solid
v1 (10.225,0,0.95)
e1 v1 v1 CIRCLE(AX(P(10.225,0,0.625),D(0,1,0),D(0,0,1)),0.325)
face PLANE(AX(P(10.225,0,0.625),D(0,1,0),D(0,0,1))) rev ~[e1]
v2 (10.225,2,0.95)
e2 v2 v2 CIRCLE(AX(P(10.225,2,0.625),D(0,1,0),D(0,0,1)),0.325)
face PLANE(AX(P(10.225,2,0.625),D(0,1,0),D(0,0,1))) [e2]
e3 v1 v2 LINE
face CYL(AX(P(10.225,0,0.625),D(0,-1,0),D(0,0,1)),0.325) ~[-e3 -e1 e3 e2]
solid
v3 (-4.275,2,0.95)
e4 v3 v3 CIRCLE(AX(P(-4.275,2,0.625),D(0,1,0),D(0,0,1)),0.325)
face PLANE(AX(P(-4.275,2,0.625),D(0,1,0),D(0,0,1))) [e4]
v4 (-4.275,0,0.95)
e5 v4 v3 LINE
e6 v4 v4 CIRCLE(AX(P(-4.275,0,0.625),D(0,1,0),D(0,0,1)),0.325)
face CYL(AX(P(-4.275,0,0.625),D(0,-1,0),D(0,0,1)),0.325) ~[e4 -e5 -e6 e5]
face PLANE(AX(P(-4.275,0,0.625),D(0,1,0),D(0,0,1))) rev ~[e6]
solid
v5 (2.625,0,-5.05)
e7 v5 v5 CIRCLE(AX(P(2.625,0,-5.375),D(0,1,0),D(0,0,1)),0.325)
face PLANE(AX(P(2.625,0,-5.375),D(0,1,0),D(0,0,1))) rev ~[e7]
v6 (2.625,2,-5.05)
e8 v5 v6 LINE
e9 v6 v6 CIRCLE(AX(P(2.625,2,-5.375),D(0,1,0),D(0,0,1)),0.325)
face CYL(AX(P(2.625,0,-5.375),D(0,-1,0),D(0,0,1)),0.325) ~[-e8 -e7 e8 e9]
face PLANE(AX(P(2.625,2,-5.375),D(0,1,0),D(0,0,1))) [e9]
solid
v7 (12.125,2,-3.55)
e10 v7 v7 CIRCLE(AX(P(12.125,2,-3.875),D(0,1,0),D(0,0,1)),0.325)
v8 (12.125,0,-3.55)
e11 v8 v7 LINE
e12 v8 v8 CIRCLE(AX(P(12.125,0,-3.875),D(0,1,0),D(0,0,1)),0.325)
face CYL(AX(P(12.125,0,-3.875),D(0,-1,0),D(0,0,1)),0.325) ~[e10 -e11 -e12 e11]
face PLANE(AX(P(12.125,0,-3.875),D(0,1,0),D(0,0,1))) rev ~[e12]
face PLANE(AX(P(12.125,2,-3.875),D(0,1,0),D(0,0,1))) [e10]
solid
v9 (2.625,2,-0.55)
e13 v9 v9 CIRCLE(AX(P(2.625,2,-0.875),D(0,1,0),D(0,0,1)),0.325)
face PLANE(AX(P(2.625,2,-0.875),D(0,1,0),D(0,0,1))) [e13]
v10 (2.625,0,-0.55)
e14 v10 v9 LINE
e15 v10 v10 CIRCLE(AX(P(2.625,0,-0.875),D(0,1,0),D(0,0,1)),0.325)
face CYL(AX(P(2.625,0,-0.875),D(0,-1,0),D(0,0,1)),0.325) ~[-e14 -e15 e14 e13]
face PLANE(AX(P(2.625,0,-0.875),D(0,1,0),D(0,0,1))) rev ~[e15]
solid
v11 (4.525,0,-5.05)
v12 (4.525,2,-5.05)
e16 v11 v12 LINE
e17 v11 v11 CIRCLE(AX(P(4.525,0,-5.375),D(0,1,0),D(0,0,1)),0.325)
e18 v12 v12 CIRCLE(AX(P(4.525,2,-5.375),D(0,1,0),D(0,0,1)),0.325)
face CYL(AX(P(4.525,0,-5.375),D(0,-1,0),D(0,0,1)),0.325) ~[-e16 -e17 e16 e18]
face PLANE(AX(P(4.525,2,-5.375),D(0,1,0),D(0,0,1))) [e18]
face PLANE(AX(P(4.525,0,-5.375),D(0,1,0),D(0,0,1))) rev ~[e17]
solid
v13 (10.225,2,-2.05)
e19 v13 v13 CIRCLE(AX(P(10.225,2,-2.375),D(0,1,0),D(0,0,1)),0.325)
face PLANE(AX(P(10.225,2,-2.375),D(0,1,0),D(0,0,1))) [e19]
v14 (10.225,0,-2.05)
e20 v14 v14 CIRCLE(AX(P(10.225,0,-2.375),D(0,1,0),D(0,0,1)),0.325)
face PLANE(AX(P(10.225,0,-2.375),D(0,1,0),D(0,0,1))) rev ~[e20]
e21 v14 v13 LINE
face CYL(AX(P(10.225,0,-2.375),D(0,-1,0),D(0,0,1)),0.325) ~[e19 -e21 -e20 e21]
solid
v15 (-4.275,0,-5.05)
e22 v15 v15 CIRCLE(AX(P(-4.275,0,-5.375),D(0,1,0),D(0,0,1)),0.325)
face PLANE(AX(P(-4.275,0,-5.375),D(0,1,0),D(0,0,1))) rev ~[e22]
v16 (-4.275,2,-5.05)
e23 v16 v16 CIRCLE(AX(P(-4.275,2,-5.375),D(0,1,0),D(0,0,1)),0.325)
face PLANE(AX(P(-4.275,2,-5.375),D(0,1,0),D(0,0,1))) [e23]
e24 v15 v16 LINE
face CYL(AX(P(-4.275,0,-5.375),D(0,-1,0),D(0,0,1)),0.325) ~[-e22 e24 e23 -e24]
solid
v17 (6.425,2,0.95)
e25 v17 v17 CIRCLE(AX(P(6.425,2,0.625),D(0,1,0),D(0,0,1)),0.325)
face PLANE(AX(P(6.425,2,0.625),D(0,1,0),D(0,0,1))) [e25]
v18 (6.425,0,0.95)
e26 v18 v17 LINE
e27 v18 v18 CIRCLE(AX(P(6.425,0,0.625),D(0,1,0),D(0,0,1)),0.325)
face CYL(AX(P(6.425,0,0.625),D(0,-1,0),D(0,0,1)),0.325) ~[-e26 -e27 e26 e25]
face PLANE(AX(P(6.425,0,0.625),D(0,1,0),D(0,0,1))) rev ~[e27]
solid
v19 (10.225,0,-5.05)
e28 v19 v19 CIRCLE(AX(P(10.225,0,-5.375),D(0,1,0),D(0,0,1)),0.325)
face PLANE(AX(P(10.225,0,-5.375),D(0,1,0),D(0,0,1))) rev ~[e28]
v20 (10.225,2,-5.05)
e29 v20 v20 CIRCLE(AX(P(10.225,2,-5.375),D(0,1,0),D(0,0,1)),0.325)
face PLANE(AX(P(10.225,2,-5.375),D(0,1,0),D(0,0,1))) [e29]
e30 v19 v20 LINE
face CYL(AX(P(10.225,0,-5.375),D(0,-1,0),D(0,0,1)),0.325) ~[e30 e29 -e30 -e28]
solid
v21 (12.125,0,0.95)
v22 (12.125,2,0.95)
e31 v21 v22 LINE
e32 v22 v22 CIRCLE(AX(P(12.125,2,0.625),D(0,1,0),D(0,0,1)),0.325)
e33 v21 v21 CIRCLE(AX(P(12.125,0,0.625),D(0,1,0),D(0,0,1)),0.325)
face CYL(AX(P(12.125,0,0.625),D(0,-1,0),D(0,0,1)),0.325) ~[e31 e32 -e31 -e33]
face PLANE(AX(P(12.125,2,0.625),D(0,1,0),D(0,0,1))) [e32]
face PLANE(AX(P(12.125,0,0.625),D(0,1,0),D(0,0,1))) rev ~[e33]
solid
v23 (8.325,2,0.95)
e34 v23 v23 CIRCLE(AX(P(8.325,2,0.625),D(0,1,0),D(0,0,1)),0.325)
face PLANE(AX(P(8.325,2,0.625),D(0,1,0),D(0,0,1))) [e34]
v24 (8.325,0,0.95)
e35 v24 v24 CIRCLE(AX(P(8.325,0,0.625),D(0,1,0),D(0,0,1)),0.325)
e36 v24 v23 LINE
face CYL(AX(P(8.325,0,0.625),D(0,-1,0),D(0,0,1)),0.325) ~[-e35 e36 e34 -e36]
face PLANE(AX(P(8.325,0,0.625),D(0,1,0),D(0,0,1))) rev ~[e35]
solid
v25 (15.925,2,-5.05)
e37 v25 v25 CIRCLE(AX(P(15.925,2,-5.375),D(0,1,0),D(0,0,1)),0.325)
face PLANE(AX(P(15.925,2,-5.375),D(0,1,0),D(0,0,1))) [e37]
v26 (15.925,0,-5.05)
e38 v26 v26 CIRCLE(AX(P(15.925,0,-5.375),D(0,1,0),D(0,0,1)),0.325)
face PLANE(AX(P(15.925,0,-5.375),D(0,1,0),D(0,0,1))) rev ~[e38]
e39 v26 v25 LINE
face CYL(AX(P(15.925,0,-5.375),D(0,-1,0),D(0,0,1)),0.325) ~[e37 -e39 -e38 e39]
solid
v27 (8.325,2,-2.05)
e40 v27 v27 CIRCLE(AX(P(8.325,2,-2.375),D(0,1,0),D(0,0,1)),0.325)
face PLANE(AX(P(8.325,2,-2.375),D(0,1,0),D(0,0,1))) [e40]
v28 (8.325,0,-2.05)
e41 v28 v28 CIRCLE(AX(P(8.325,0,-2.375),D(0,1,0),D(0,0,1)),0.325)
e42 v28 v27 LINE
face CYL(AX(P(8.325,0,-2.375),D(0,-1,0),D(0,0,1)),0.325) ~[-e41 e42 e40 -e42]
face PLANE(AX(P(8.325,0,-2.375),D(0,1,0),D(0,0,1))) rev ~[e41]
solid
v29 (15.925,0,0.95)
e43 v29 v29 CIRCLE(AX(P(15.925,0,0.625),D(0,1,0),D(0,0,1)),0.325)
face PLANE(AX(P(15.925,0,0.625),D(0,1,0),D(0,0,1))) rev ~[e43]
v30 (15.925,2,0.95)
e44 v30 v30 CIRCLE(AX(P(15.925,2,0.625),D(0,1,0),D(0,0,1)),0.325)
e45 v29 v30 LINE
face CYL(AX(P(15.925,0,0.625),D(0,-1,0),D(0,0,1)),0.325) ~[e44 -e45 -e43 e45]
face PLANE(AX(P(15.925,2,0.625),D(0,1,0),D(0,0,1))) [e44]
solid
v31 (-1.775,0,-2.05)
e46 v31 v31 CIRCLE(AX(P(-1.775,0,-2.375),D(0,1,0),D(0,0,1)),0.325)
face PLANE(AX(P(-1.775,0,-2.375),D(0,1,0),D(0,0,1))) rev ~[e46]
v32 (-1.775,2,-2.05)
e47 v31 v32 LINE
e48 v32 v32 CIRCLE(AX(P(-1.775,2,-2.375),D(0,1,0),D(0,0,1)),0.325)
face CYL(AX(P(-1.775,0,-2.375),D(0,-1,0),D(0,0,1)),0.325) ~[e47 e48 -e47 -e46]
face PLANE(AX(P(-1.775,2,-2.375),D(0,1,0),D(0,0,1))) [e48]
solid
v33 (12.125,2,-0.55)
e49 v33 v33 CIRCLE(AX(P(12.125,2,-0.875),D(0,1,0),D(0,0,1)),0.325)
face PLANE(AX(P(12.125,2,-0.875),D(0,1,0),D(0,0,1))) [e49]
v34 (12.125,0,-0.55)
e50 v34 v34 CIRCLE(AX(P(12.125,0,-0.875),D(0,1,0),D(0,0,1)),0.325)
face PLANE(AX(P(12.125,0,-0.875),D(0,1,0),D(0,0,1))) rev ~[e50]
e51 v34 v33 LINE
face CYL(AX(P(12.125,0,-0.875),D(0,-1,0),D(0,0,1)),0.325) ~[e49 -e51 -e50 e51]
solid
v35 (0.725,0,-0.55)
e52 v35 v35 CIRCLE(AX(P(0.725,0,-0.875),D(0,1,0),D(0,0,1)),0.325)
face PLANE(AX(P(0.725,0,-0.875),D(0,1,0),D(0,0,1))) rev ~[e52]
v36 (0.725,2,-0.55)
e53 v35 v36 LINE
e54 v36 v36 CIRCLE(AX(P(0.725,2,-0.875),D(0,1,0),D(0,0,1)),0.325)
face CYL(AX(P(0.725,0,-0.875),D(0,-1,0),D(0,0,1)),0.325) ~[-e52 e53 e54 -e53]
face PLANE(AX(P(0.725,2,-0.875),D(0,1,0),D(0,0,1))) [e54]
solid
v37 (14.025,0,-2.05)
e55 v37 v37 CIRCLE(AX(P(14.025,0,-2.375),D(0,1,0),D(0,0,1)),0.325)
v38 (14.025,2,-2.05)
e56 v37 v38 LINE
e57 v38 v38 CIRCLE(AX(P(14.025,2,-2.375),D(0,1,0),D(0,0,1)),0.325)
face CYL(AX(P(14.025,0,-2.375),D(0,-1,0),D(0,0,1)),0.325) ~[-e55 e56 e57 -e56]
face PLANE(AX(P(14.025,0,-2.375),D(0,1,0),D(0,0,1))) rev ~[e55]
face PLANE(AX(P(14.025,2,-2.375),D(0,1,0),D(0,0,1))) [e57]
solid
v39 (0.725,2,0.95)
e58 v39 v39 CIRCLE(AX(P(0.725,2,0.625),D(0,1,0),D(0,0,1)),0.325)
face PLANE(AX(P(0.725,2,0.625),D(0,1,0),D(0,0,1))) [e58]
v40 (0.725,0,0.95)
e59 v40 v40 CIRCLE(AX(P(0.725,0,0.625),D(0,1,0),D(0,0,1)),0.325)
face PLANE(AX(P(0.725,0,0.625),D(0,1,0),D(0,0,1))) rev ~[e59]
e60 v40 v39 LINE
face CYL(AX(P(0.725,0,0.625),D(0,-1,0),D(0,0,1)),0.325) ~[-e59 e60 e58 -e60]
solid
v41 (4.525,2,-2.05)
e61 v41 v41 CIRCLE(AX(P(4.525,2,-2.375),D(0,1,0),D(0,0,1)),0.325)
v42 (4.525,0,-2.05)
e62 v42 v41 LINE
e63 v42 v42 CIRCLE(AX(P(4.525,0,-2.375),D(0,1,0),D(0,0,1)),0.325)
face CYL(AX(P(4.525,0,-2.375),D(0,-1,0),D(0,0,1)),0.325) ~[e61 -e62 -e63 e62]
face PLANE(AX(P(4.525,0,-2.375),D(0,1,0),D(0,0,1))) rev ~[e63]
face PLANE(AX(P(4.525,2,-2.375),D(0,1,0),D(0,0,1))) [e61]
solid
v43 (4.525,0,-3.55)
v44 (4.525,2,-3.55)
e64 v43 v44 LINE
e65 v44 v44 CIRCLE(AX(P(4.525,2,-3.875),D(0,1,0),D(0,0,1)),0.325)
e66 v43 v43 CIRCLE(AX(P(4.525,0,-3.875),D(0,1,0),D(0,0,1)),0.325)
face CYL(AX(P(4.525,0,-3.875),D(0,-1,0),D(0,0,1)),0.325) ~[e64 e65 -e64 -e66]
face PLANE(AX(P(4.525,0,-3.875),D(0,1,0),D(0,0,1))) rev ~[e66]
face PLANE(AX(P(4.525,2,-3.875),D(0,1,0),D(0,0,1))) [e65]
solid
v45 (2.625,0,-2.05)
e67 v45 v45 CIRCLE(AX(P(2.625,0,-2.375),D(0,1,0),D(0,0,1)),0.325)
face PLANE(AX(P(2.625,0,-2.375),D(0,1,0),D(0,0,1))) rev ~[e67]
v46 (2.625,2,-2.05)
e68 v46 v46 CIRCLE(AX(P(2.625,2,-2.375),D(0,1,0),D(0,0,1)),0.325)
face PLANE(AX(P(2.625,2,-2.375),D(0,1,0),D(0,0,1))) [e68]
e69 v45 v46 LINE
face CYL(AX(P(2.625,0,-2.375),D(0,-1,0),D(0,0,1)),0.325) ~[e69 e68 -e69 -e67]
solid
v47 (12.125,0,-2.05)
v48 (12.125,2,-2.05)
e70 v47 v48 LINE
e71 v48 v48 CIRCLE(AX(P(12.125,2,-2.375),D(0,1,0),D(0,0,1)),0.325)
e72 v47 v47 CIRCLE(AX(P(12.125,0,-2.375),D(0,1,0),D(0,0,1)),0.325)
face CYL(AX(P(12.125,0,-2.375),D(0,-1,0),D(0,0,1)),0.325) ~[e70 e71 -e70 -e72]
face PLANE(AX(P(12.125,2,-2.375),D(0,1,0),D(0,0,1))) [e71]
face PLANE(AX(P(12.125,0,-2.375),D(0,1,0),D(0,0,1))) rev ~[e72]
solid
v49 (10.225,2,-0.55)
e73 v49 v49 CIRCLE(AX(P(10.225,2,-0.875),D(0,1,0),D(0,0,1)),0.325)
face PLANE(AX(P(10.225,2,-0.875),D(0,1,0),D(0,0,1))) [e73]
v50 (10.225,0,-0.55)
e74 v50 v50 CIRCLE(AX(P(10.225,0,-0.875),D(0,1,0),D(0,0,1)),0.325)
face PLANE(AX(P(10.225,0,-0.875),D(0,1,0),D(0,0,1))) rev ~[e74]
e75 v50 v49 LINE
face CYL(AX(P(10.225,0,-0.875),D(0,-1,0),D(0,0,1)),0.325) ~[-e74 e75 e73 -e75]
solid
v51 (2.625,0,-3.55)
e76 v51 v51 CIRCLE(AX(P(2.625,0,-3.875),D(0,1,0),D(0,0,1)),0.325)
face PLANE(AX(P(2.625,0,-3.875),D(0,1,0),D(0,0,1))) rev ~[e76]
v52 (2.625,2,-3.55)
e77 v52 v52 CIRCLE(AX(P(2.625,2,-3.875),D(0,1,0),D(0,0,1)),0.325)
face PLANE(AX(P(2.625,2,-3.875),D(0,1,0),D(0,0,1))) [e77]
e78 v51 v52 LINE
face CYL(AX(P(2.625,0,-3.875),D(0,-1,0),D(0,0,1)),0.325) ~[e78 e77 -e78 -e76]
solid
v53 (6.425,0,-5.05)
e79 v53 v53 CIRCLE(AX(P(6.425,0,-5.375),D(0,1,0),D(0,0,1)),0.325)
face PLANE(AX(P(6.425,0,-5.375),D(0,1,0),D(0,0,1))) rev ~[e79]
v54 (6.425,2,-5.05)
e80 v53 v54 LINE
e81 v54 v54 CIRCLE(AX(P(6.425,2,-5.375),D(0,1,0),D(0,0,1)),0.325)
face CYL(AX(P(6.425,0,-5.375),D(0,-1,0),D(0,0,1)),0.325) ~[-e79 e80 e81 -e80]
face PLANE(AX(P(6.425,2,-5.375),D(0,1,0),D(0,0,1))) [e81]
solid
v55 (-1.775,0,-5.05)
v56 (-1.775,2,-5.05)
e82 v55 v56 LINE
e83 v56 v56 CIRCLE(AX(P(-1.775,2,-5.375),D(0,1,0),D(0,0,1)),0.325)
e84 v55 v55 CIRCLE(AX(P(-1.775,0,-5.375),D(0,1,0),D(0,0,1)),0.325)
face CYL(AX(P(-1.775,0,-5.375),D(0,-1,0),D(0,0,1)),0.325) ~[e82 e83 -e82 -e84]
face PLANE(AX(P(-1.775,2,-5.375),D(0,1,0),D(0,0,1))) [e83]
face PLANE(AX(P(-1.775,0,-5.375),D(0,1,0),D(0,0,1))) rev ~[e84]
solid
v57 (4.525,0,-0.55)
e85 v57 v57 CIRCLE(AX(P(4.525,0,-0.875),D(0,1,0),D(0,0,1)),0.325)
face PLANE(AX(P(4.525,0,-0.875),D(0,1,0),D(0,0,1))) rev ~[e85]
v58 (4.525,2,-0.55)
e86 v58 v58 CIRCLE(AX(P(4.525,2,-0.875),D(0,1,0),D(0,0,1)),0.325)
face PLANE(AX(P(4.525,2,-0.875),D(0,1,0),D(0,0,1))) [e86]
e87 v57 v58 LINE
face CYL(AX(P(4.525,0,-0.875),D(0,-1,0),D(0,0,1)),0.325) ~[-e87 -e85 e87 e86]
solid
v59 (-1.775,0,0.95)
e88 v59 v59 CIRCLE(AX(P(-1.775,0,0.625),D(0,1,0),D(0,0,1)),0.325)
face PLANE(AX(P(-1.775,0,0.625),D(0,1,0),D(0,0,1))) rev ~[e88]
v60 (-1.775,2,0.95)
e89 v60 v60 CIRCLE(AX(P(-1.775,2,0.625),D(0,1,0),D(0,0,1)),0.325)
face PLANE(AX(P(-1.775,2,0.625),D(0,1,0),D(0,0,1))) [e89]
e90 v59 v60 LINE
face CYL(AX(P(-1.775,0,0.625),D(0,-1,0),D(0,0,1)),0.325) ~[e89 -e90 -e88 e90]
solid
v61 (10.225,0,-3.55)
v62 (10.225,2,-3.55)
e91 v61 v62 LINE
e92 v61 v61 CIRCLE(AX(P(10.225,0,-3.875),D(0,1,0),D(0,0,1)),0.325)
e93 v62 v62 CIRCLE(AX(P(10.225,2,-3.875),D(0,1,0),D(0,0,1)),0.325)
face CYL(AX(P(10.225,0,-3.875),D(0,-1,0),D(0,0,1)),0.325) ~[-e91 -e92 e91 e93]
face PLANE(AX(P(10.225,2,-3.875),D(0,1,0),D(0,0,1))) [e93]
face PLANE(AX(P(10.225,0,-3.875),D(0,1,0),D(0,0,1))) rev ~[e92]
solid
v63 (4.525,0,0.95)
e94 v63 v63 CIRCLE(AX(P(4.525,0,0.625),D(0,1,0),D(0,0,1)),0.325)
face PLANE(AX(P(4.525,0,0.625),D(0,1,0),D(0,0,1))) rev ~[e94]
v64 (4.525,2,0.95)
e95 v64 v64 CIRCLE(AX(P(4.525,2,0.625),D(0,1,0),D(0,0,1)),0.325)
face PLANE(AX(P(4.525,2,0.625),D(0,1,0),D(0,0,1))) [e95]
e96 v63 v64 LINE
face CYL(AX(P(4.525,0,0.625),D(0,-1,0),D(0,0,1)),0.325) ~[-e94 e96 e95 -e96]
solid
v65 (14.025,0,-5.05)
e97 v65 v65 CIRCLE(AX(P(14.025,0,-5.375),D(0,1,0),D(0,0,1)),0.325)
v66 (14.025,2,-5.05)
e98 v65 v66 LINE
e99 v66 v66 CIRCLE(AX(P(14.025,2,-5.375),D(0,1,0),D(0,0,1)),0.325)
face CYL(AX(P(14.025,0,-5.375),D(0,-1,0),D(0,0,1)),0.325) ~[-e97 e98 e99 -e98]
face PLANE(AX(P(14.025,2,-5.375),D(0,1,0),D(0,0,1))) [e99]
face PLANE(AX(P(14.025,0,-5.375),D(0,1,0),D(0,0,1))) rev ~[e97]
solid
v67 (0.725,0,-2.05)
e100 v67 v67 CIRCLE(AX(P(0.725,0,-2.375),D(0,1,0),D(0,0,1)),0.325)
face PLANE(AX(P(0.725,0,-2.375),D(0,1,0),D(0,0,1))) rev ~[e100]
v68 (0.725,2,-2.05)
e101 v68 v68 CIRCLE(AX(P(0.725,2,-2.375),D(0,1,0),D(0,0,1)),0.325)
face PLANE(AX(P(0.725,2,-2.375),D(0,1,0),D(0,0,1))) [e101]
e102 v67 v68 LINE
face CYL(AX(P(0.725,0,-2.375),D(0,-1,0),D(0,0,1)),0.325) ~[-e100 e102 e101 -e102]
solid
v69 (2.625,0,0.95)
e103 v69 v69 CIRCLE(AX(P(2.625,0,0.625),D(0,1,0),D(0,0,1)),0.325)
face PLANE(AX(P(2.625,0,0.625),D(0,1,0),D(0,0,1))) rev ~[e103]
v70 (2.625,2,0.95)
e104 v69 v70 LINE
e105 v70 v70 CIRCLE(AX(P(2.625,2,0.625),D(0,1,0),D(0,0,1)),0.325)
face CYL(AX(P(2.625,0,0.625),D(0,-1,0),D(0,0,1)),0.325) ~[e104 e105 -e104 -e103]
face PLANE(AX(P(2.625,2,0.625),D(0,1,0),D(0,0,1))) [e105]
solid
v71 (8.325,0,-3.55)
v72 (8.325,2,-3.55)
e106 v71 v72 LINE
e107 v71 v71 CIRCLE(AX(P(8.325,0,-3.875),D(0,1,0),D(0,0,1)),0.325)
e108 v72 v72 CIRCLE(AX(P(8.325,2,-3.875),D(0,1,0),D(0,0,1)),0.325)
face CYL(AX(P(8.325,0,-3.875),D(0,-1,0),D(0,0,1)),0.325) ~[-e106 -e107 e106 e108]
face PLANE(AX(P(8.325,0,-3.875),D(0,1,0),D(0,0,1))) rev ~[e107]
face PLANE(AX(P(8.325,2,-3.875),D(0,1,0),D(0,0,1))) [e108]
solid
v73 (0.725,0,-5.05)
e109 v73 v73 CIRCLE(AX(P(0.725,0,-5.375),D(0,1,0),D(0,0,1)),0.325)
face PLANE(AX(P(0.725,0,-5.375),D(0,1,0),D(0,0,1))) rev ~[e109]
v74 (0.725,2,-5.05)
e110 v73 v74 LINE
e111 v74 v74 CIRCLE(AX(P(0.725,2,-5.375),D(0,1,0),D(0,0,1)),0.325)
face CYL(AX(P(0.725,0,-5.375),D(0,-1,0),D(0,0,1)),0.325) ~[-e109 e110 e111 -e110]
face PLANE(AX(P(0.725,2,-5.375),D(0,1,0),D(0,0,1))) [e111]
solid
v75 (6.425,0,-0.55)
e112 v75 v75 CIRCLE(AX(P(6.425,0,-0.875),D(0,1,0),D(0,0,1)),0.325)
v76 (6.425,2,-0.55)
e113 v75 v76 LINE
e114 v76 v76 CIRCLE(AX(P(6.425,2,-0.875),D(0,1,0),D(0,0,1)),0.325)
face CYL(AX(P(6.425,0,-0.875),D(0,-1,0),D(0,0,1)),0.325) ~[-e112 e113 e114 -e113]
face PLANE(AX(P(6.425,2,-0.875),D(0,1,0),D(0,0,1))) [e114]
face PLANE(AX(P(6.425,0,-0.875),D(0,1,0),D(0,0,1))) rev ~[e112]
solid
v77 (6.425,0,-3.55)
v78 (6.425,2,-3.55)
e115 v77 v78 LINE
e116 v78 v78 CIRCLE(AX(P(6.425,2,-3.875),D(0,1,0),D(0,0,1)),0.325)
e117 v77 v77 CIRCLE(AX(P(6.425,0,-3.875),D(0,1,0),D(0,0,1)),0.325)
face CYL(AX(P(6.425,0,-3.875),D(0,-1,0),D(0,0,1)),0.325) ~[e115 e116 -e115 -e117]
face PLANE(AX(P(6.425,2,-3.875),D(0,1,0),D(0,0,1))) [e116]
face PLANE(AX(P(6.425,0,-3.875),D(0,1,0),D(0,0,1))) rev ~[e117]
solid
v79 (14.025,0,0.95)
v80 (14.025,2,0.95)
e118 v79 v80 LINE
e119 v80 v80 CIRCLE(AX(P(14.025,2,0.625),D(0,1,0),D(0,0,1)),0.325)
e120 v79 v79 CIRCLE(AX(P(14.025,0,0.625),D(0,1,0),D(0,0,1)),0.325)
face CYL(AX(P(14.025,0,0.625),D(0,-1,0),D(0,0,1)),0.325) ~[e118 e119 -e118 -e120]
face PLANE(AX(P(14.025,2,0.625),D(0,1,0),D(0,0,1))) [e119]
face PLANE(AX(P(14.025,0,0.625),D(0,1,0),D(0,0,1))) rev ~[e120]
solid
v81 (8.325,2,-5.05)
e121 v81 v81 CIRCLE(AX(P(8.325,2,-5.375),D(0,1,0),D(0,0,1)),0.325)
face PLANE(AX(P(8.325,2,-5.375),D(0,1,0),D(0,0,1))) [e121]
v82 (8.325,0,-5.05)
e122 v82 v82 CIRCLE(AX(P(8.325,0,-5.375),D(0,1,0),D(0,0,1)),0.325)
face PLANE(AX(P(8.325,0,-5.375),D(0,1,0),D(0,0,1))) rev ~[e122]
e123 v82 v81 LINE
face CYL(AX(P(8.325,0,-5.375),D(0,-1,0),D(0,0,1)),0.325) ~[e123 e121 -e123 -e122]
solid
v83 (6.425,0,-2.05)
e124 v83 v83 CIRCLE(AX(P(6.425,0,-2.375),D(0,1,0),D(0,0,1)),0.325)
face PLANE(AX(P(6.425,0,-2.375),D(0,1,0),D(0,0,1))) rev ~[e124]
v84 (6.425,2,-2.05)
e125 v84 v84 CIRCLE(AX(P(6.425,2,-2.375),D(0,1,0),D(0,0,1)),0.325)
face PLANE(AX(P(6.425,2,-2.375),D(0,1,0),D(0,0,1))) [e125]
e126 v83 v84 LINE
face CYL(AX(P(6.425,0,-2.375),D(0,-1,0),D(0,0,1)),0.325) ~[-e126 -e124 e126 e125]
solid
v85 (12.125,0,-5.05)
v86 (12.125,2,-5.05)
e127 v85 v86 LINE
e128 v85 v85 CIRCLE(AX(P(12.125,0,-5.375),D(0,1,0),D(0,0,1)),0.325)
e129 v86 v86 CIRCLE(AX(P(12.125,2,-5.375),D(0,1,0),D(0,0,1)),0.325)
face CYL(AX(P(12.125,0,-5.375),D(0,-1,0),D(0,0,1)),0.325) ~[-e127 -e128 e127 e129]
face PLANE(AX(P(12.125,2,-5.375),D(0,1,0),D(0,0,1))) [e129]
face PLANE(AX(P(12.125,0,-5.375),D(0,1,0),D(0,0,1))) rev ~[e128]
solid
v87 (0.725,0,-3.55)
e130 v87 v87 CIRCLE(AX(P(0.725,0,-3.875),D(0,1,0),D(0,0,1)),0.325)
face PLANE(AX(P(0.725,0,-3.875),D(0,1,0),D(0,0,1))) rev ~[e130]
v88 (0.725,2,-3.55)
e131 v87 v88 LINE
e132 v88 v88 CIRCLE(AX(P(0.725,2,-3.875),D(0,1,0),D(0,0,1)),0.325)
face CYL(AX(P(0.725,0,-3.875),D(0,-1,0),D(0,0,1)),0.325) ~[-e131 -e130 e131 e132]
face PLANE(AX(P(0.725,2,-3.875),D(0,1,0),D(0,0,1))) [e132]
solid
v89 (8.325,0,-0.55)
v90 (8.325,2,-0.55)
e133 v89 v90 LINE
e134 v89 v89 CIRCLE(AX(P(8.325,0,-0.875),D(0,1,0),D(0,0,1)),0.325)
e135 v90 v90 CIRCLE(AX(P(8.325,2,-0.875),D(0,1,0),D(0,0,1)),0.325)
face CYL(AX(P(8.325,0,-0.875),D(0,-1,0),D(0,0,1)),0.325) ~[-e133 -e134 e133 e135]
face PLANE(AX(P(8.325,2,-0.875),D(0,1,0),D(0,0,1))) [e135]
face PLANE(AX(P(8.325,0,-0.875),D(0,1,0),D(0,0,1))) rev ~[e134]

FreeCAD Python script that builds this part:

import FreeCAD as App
import Part
import Sketcher
from FreeCAD import Vector
Q = App.Units.Quantity

doc = App.newDocument("Part")
body = doc.addObject("PartDesign::Body", "Body")

sketch1 = body.newObject("Sketcher::SketchObject", "Sketch")
sketch1.AttachmentSupport = (doc.getObject("XZ_Plane"), [""])
sketch1.MapMode = "FlatFace"
sketch1.addGeometry(Part.Circle(Vector(0.72, 0.62, 0), Vector(0, 0, 1), 0.33), False)
sketch1.addConstraint([
    Sketcher.Constraint("Diameter", 0, Q("0.65 mm")),
    Sketcher.Constraint("DistanceX", -1, 1, 0, 3, Q("0.725 mm")),
    Sketcher.Constraint("DistanceY", -1, 1, 0, 3, Q("0.625 mm")),
])
pad1 = body.newObject("PartDesign::Pad", "Pad")
pad1.Profile = sketch1
pad1.Length = 2
pad1.Reversed = True
body2 = doc.addObject("PartDesign::Body", "Body001")

sketch2 = body2.newObject("Sketcher::SketchObject", "Sketch001")
sketch2.AttachmentSupport = (doc.getObject("XZ_Plane001"), [""])
sketch2.MapMode = "FlatFace"
sketch2.addGeometry(Part.Circle(Vector(2.62, 0.62, 0), Vector(0, 0, 1), 0.33), False)
sketch2.addConstraint([
    Sketcher.Constraint("Diameter", 0, Q("0.65 mm")),
    Sketcher.Constraint("DistanceX", -1, 1, 0, 3, Q("2.625 mm")),
    Sketcher.Constraint("DistanceY", -1, 1, 0, 3, Q("0.625 mm")),
])
pad2 = body2.newObject("PartDesign::Pad", "Pad001")
pad2.Profile = sketch2
pad2.Length = 2
pad2.Reversed = True
body3 = doc.addObject("PartDesign::Body", "Body002")

sketch3 = body3.newObject("Sketcher::SketchObject", "Sketch002")
sketch3.AttachmentSupport = (doc.getObject("XZ_Plane002"), [""])
sketch3.MapMode = "FlatFace"
sketch3.addGeometry(Part.Circle(Vector(4.53, 0.62, 0), Vector(0, 0, 1), 0.33), False)
sketch3.addConstraint([
    Sketcher.Constraint("Diameter", 0, Q("0.65 mm")),
    Sketcher.Constraint("DistanceX", -1, 1, 0, 3, Q("4.525 mm")),
    Sketcher.Constraint("DistanceY", -1, 1, 0, 3, Q("0.625 mm")),
])
pad3 = body3.newObject("PartDesign::Pad", "Pad002")
pad3.Profile = sketch3
pad3.Length = 2
pad3.Reversed = True
body4 = doc.addObject("PartDesign::Body", "Body003")

sketch4 = body4.newObject("Sketcher::SketchObject", "Sketch003")
sketch4.AttachmentSupport = (doc.getObject("XZ_Plane003"), [""])
sketch4.MapMode = "FlatFace"
sketch4.addGeometry(Part.Circle(Vector(6.42, 0.62, 0), Vector(0, 0, 1), 0.33), False)
sketch4.addConstraint([
    Sketcher.Constraint("Diameter", 0, Q("0.65 mm")),
    Sketcher.Constraint("DistanceX", -1, 1, 0, 3, Q("6.425 mm")),
    Sketcher.Constraint("DistanceY", -1, 1, 0, 3, Q("0.625 mm")),
])
pad4 = body4.newObject("PartDesign::Pad", "Pad003")
pad4.Profile = sketch4
pad4.Length = 2
pad4.Reversed = True
body5 = doc.addObject("PartDesign::Body", "Body004")

sketch5 = body5.newObject("Sketcher::SketchObject", "Sketch004")
sketch5.AttachmentSupport = (doc.getObject("XZ_Plane004"), [""])
sketch5.MapMode = "FlatFace"
sketch5.addGeometry(Part.Circle(Vector(8.32, 0.62, 0), Vector(0, 0, 1), 0.33), False)
sketch5.addConstraint([
    Sketcher.Constraint("Diameter", 0, Q("0.65 mm")),
    Sketcher.Constraint("DistanceX", -1, 1, 0, 3, Q("8.325 mm")),
    Sketcher.Constraint("DistanceY", -1, 1, 0, 3, Q("0.625 mm")),
])
pad5 = body5.newObject("PartDesign::Pad", "Pad004")
pad5.Profile = sketch5
pad5.Length = 2
pad5.Reversed = True
body6 = doc.addObject("PartDesign::Body", "Body005")

sketch6 = body6.newObject("Sketcher::SketchObject", "Sketch005")
sketch6.AttachmentSupport = (doc.getObject("XZ_Plane005"), [""])
sketch6.MapMode = "FlatFace"
sketch6.addGeometry(Part.Circle(Vector(10.22, 0.62, 0), Vector(0, 0, 1), 0.33), False)
sketch6.addConstraint([
    Sketcher.Constraint("Diameter", 0, Q("0.65 mm")),
    Sketcher.Constraint("DistanceX", -1, 1, 0, 3, Q("10.225 mm")),
    Sketcher.Constraint("DistanceY", -1, 1, 0, 3, Q("0.625 mm")),
])
pad6 = body6.newObject("PartDesign::Pad", "Pad005")
pad6.Profile = sketch6
pad6.Length = 2
pad6.Reversed = True
body7 = doc.addObject("PartDesign::Body", "Body006")

sketch7 = body7.newObject("Sketcher::SketchObject", "Sketch006")
sketch7.AttachmentSupport = (doc.getObject("XZ_Plane006"), [""])
sketch7.MapMode = "FlatFace"
sketch7.addGeometry(Part.Circle(Vector(12.12, 0.62, 0), Vector(0, 0, 1), 0.33), False)
sketch7.addConstraint([
    Sketcher.Constraint("Diameter", 0, Q("0.65 mm")),
    Sketcher.Constraint("DistanceX", -1, 1, 0, 3, Q("12.125 mm")),
    Sketcher.Constraint("DistanceY", -1, 1, 0, 3, Q("0.625 mm")),
])
pad7 = body7.newObject("PartDesign::Pad", "Pad006")
pad7.Profile = sketch7
pad7.Length = 2
pad7.Reversed = True
body8 = doc.addObject("PartDesign::Body", "Body007")

sketch8 = body8.newObject("Sketcher::SketchObject", "Sketch007")
sketch8.AttachmentSupport = (doc.getObject("XZ_Plane007"), [""])
sketch8.MapMode = "FlatFace"
sketch8.addGeometry(Part.Circle(Vector(14.03, 0.62, 0), Vector(0, 0, 1), 0.33), False)
sketch8.addConstraint([
    Sketcher.Constraint("Diameter", 0, Q("0.65 mm")),
    Sketcher.Constraint("DistanceX", -1, 1, 0, 3, Q("14.025 mm")),
    Sketcher.Constraint("DistanceY", -1, 1, 0, 3, Q("0.625 mm")),
])
pad8 = body8.newObject("PartDesign::Pad", "Pad007")
pad8.Profile = sketch8
pad8.Length = 2
pad8.Reversed = True
body9 = doc.addObject("PartDesign::Body", "Body008")

sketch9 = body9.newObject("Sketcher::SketchObject", "Sketch008")
sketch9.AttachmentSupport = (doc.getObject("XZ_Plane008"), [""])
sketch9.MapMode = "FlatFace"
sketch9.addGeometry(Part.Circle(Vector(15.93, 0.62, 0), Vector(0, 0, 1), 0.33), False)
sketch9.addConstraint([
    Sketcher.Constraint("Diameter", 0, Q("0.65 mm")),
    Sketcher.Constraint("DistanceX", -1, 1, 0, 3, Q("15.925 mm")),
    Sketcher.Constraint("DistanceY", -1, 1, 0, 3, Q("0.625 mm")),
])
pad9 = body9.newObject("PartDesign::Pad", "Pad008")
pad9.Profile = sketch9
pad9.Length = 2
pad9.Reversed = True
body10 = doc.addObject("PartDesign::Body", "Body009")

sketch10 = body10.newObject("Sketcher::SketchObject", "Sketch009")
sketch10.AttachmentSupport = (doc.getObject("XZ_Plane009"), [""])
sketch10.MapMode = "FlatFace"
sketch10.addGeometry(Part.Circle(Vector(2.62, -0.88, 0), Vector(0, 0, 1), 0.33), False)
sketch10.addConstraint([
    Sketcher.Constraint("Diameter", 0, Q("0.65 mm")),
    Sketcher.Constraint("DistanceX", -1, 1, 0, 3, Q("2.625 mm")),
    Sketcher.Constraint("DistanceY", 0, 3, -1, 1, Q("0.875 mm")),
])
pad10 = body10.newObject("PartDesign::Pad", "Pad009")
pad10.Profile = sketch10
pad10.Length = 2
pad10.Reversed = True
body11 = doc.addObject("PartDesign::Body", "Body010")

sketch11 = body11.newObject("Sketcher::SketchObject", "Sketch010")
sketch11.AttachmentSupport = (doc.getObject("XZ_Plane010"), [""])
sketch11.MapMode = "FlatFace"
sketch11.addGeometry(Part.Circle(Vector(4.53, -0.88, 0), Vector(0, 0, 1), 0.33), False)
sketch11.addConstraint([
    Sketcher.Constraint("Diameter", 0, Q("0.65 mm")),
    Sketcher.Constraint("DistanceX", -1, 1, 0, 3, Q("4.525 mm")),
    Sketcher.Constraint("DistanceY", 0, 3, -1, 1, Q("0.875 mm")),
])
pad11 = body11.newObject("PartDesign::Pad", "Pad010")
pad11.Profile = sketch11
pad11.Length = 2
pad11.Reversed = True
body12 = doc.addObject("PartDesign::Body", "Body011")

sketch12 = body12.newObject("Sketcher::SketchObject", "Sketch011")
sketch12.AttachmentSupport = (doc.getObject("XZ_Plane011"), [""])
sketch12.MapMode = "FlatFace"
sketch12.addGeometry(Part.Circle(Vector(6.42, -0.88, 0), Vector(0, 0, 1), 0.33), False)
sketch12.addConstraint([
    Sketcher.Constraint("Diameter", 0, Q("0.65 mm")),
    Sketcher.Constraint("DistanceX", -1, 1, 0, 3, Q("6.425 mm")),
    Sketcher.Constraint("DistanceY", 0, 3, -1, 1, Q("0.875 mm")),
])
pad12 = body12.newObject("PartDesign::Pad", "Pad011")
pad12.Profile = sketch12
pad12.Length = 2
pad12.Reversed = True
body13 = doc.addObject("PartDesign::Body", "Body012")

sketch13 = body13.newObject("Sketcher::SketchObject", "Sketch012")
sketch13.AttachmentSupport = (doc.getObject("XZ_Plane012"), [""])
sketch13.MapMode = "FlatFace"
sketch13.addGeometry(Part.Circle(Vector(8.32, -0.88, 0), Vector(0, 0, 1), 0.33), False)
sketch13.addConstraint([
    Sketcher.Constraint("Diameter", 0, Q("0.65 mm")),
    Sketcher.Constraint("DistanceX", -1, 1, 0, 3, Q("8.325 mm")),
    Sketcher.Constraint("DistanceY", 0, 3, -1, 1, Q("0.875 mm")),
])
pad13 = body13.newObject("PartDesign::Pad", "Pad012")
pad13.Profile = sketch13
pad13.Length = 2
pad13.Reversed = True
body14 = doc.addObject("PartDesign::Body", "Body013")

sketch14 = body14.newObject("Sketcher::SketchObject", "Sketch013")
sketch14.AttachmentSupport = (doc.getObject("XZ_Plane013"), [""])
sketch14.MapMode = "FlatFace"
sketch14.addGeometry(Part.Circle(Vector(10.22, -0.88, 0), Vector(0, 0, 1), 0.33), False)
sketch14.addConstraint([
    Sketcher.Constraint("Diameter", 0, Q("0.65 mm")),
    Sketcher.Constraint("DistanceX", -1, 1, 0, 3, Q("10.225 mm")),
    Sketcher.Constraint("DistanceY", 0, 3, -1, 1, Q("0.875 mm")),
])
pad14 = body14.newObject("PartDesign::Pad", "Pad013")
pad14.Profile = sketch14
pad14.Length = 2
pad14.Reversed = True
body15 = doc.addObject("PartDesign::Body", "Body014")

sketch15 = body15.newObject("Sketcher::SketchObject", "Sketch014")
sketch15.AttachmentSupport = (doc.getObject("XZ_Plane014"), [""])
sketch15.MapMode = "FlatFace"
sketch15.addGeometry(Part.Circle(Vector(12.12, -0.88, 0), Vector(0, 0, 1), 0.33), False)
sketch15.addConstraint([
    Sketcher.Constraint("Diameter", 0, Q("0.65 mm")),
    Sketcher.Constraint("DistanceX", -1, 1, 0, 3, Q("12.125 mm")),
    Sketcher.Constraint("DistanceY", 0, 3, -1, 1, Q("0.875 mm")),
])
pad15 = body15.newObject("PartDesign::Pad", "Pad014")
pad15.Profile = sketch15
pad15.Length = 2
pad15.Reversed = True
body16 = doc.addObject("PartDesign::Body", "Body015")

sketch16 = body16.newObject("Sketcher::SketchObject", "Sketch015")
sketch16.AttachmentSupport = (doc.getObject("XZ_Plane015"), [""])
sketch16.MapMode = "FlatFace"
sketch16.addGeometry(Part.Circle(Vector(2.62, -2.38, 0), Vector(0, 0, 1), 0.33), False)
sketch16.addConstraint([
    Sketcher.Constraint("Diameter", 0, Q("0.65 mm")),
    Sketcher.Constraint("DistanceX", -1, 1, 0, 3, Q("2.625 mm")),
    Sketcher.Constraint("DistanceY", 0, 3, -1, 1, Q("2.375 mm")),
])
pad16 = body16.newObject("PartDesign::Pad", "Pad015")
pad16.Profile = sketch16
pad16.Length = 2
pad16.Reversed = True
body17 = doc.addObject("PartDesign::Body", "Body016")

sketch17 = body17.newObject("Sketcher::SketchObject", "Sketch016")
sketch17.AttachmentSupport = (doc.getObject("XZ_Plane016"), [""])
sketch17.MapMode = "FlatFace"
sketch17.addGeometry(Part.Circle(Vector(4.53, -2.38, 0), Vector(0, 0, 1), 0.33), False)
sketch17.addConstraint([
    Sketcher.Constraint("Diameter", 0, Q("0.65 mm")),
    Sketcher.Constraint("DistanceX", -1, 1, 0, 3, Q("4.525 mm")),
    Sketcher.Constraint("DistanceY", 0, 3, -1, 1, Q("2.375 mm")),
])
pad17 = body17.newObject("PartDesign::Pad", "Pad016")
pad17.Profile = sketch17
pad17.Length = 2
pad17.Reversed = True
body18 = doc.addObject("PartDesign::Body", "Body017")

sketch18 = body18.newObject("Sketcher::SketchObject", "Sketch017")
sketch18.AttachmentSupport = (doc.getObject("XZ_Plane017"), [""])
sketch18.MapMode = "FlatFace"
sketch18.addGeometry(Part.Circle(Vector(6.42, -2.38, 0), Vector(0, 0, 1), 0.33), False)
sketch18.addConstraint([
    Sketcher.Constraint("Diameter", 0, Q("0.65 mm")),
    Sketcher.Constraint("DistanceX", -1, 1, 0, 3, Q("6.425 mm")),
    Sketcher.Constraint("DistanceY", 0, 3, -1, 1, Q("2.375 mm")),
])
pad18 = body18.newObject("PartDesign::Pad", "Pad017")
pad18.Profile = sketch18
pad18.Length = 2
pad18.Reversed = True
body19 = doc.addObject("PartDesign::Body", "Body018")

sketch19 = body19.newObject("Sketcher::SketchObject", "Sketch018")
sketch19.AttachmentSupport = (doc.getObject("XZ_Plane018"), [""])
sketch19.MapMode = "FlatFace"
sketch19.addGeometry(Part.Circle(Vector(8.32, -2.38, 0), Vector(0, 0, 1), 0.33), False)
sketch19.addConstraint([
    Sketcher.Constraint("Diameter", 0, Q("0.65 mm")),
    Sketcher.Constraint("DistanceX", -1, 1, 0, 3, Q("8.325 mm")),
    Sketcher.Constraint("DistanceY", 0, 3, -1, 1, Q("2.375 mm")),
])
pad19 = body19.newObject("PartDesign::Pad", "Pad018")
pad19.Profile = sketch19
pad19.Length = 2
pad19.Reversed = True
body20 = doc.addObject("PartDesign::Body", "Body019")

sketch20 = body20.newObject("Sketcher::SketchObject", "Sketch019")
sketch20.AttachmentSupport = (doc.getObject("XZ_Plane019"), [""])
sketch20.MapMode = "FlatFace"
sketch20.addGeometry(Part.Circle(Vector(10.22, -2.38, 0), Vector(0, 0, 1), 0.33), False)
sketch20.addConstraint([
    Sketcher.Constraint("Diameter", 0, Q("0.65 mm")),
    Sketcher.Constraint("DistanceX", -1, 1, 0, 3, Q("10.225 mm")),
    Sketcher.Constraint("DistanceY", 0, 3, -1, 1, Q("2.375 mm")),
])
pad20 = body20.newObject("PartDesign::Pad", "Pad019")
pad20.Profile = sketch20
pad20.Length = 2
pad20.Reversed = True
body21 = doc.addObject("PartDesign::Body", "Body020")

sketch21 = body21.newObject("Sketcher::SketchObject", "Sketch020")
sketch21.AttachmentSupport = (doc.getObject("XZ_Plane020"), [""])
sketch21.MapMode = "FlatFace"
sketch21.addGeometry(Part.Circle(Vector(12.12, -2.38, 0), Vector(0, 0, 1), 0.33), False)
sketch21.addConstraint([
    Sketcher.Constraint("Diameter", 0, Q("0.65 mm")),
    Sketcher.Constraint("DistanceX", -1, 1, 0, 3, Q("12.125 mm")),
    Sketcher.Constraint("DistanceY", 0, 3, -1, 1, Q("2.375 mm")),
])
pad21 = body21.newObject("PartDesign::Pad", "Pad020")
pad21.Profile = sketch21
pad21.Length = 2
pad21.Reversed = True
body22 = doc.addObject("PartDesign::Body", "Body021")

sketch22 = body22.newObject("Sketcher::SketchObject", "Sketch021")
sketch22.AttachmentSupport = (doc.getObject("XZ_Plane021"), [""])
sketch22.MapMode = "FlatFace"
sketch22.addGeometry(Part.Circle(Vector(14.03, -2.38, 0), Vector(0, 0, 1), 0.33), False)
sketch22.addConstraint([
    Sketcher.Constraint("Diameter", 0, Q("0.65 mm")),
    Sketcher.Constraint("DistanceX", -1, 1, 0, 3, Q("14.025 mm")),
    Sketcher.Constraint("DistanceY", 0, 3, -1, 1, Q("2.375 mm")),
])
pad22 = body22.newObject("PartDesign::Pad", "Pad021")
pad22.Profile = sketch22
pad22.Length = 2
pad22.Reversed = True
body23 = doc.addObject("PartDesign::Body", "Body022")

sketch23 = body23.newObject("Sketcher::SketchObject", "Sketch022")
sketch23.AttachmentSupport = (doc.getObject("XZ_Plane022"), [""])
sketch23.MapMode = "FlatFace"
sketch23.addGeometry(Part.Circle(Vector(2.62, -3.88, 0), Vector(0, 0, 1), 0.33), False)
sketch23.addConstraint([
    Sketcher.Constraint("Diameter", 0, Q("0.65 mm")),
    Sketcher.Constraint("DistanceX", -1, 1, 0, 3, Q("2.625 mm")),
    Sketcher.Constraint("DistanceY", 0, 3, -1, 1, Q("3.875 mm")),
])
pad23 = body23.newObject("PartDesign::Pad", "Pad022")
pad23.Profile = sketch23
pad23.Length = 2
pad23.Reversed = True
body24 = doc.addObject("PartDesign::Body", "Body023")

sketch24 = body24.newObject("Sketcher::SketchObject", "Sketch023")
sketch24.AttachmentSupport = (doc.getObject("XZ_Plane023"), [""])
sketch24.MapMode = "FlatFace"
sketch24.addGeometry(Part.Circle(Vector(4.53, -3.88, 0), Vector(0, 0, 1), 0.33), False)
sketch24.addConstraint([
    Sketcher.Constraint("Diameter", 0, Q("0.65 mm")),
    Sketcher.Constraint("DistanceX", -1, 1, 0, 3, Q("4.525 mm")),
    Sketcher.Constraint("DistanceY", 0, 3, -1, 1, Q("3.875 mm")),
])
pad24 = body24.newObject("PartDesign::Pad", "Pad023")
pad24.Profile = sketch24
pad24.Length = 2
pad24.Reversed = True
body25 = doc.addObject("PartDesign::Body", "Body024")

sketch25 = body25.newObject("Sketcher::SketchObject", "Sketch024")
sketch25.AttachmentSupport = (doc.getObject("XZ_Plane024"), [""])
sketch25.MapMode = "FlatFace"
sketch25.addGeometry(Part.Circle(Vector(6.42, -3.88, 0), Vector(0, 0, 1), 0.33), False)
sketch25.addConstraint([
    Sketcher.Constraint("Diameter", 0, Q("0.65 mm")),
    Sketcher.Constraint("DistanceX", -1, 1, 0, 3, Q("6.425 mm")),
    Sketcher.Constraint("DistanceY", 0, 3, -1, 1, Q("3.875 mm")),
])
pad25 = body25.newObject("PartDesign::Pad", "Pad024")
pad25.Profile = sketch25
pad25.Length = 2
pad25.Reversed = True
body26 = doc.addObject("PartDesign::Body", "Body025")

sketch26 = body26.newObject("Sketcher::SketchObject", "Sketch025")
sketch26.AttachmentSupport = (doc.getObject("XZ_Plane025"), [""])
sketch26.MapMode = "FlatFace"
sketch26.addGeometry(Part.Circle(Vector(8.32, -3.88, 0), Vector(0, 0, 1), 0.33), False)
sketch26.addConstraint([
    Sketcher.Constraint("Diameter", 0, Q("0.65 mm")),
    Sketcher.Constraint("DistanceX", -1, 1, 0, 3, Q("8.325 mm")),
    Sketcher.Constraint("DistanceY", 0, 3, -1, 1, Q("3.875 mm")),
])
pad26 = body26.newObject("PartDesign::Pad", "Pad025")
pad26.Profile = sketch26
pad26.Length = 2
pad26.Reversed = True
body27 = doc.addObject("PartDesign::Body", "Body026")

sketch27 = body27.newObject("Sketcher::SketchObject", "Sketch026")
sketch27.AttachmentSupport = (doc.getObject("XZ_Plane026"), [""])
sketch27.MapMode = "FlatFace"
sketch27.addGeometry(Part.Circle(Vector(10.22, -3.88, 0), Vector(0, 0, 1), 0.33), False)
sketch27.addConstraint([
    Sketcher.Constraint("Diameter", 0, Q("0.65 mm")),
    Sketcher.Constraint("DistanceX", -1, 1, 0, 3, Q("10.225 mm")),
    Sketcher.Constraint("DistanceY", 0, 3, -1, 1, Q("3.875 mm")),
])
pad27 = body27.newObject("PartDesign::Pad", "Pad026")
pad27.Profile = sketch27
pad27.Length = 2
pad27.Reversed = True
body28 = doc.addObject("PartDesign::Body", "Body027")

sketch28 = body28.newObject("Sketcher::SketchObject", "Sketch027")
sketch28.AttachmentSupport = (doc.getObject("XZ_Plane027"), [""])
sketch28.MapMode = "FlatFace"
sketch28.addGeometry(Part.Circle(Vector(12.12, -3.88, 0), Vector(0, 0, 1), 0.33), False)
sketch28.addConstraint([
    Sketcher.Constraint("Diameter", 0, Q("0.65 mm")),
    Sketcher.Constraint("DistanceX", -1, 1, 0, 3, Q("12.125 mm")),
    Sketcher.Constraint("DistanceY", 0, 3, -1, 1, Q("3.875 mm")),
])
pad28 = body28.newObject("PartDesign::Pad", "Pad027")
pad28.Profile = sketch28
pad28.Length = 2
pad28.Reversed = True
body29 = doc.addObject("PartDesign::Body", "Body028")

sketch29 = body29.newObject("Sketcher::SketchObject", "Sketch028")
sketch29.AttachmentSupport = (doc.getObject("XZ_Plane028"), [""])
sketch29.MapMode = "FlatFace"
sketch29.addGeometry(Part.Circle(Vector(2.62, -5.38, 0), Vector(0, 0, 1), 0.33), False)
sketch29.addConstraint([
    Sketcher.Constraint("Diameter", 0, Q("0.65 mm")),
    Sketcher.Constraint("DistanceX", -1, 1, 0, 3, Q("2.625 mm")),
    Sketcher.Constraint("DistanceY", 0, 3, -1, 1, Q("5.375 mm")),
])
pad29 = body29.newObject("PartDesign::Pad", "Pad028")
pad29.Profile = sketch29
pad29.Length = 2
pad29.Reversed = True
body30 = doc.addObject("PartDesign::Body", "Body029")

sketch30 = body30.newObject("Sketcher::SketchObject", "Sketch029")
sketch30.AttachmentSupport = (doc.getObject("XZ_Plane029"), [""])
sketch30.MapMode = "FlatFace"
sketch30.addGeometry(Part.Circle(Vector(4.53, -5.38, 0), Vector(0, 0, 1), 0.33), False)
sketch30.addConstraint([
    Sketcher.Constraint("Diameter", 0, Q("0.65 mm")),
    Sketcher.Constraint("DistanceX", -1, 1, 0, 3, Q("4.525 mm")),
    Sketcher.Constraint("DistanceY", 0, 3, -1, 1, Q("5.375 mm")),
])
pad30 = body30.newObject("PartDesign::Pad", "Pad029")
pad30.Profile = sketch30
pad30.Length = 2
pad30.Reversed = True
body31 = doc.addObject("PartDesign::Body", "Body030")

sketch31 = body31.newObject("Sketcher::SketchObject", "Sketch030")
sketch31.AttachmentSupport = (doc.getObject("XZ_Plane030"), [""])
sketch31.MapMode = "FlatFace"
sketch31.addGeometry(Part.Circle(Vector(6.42, -5.38, 0), Vector(0, 0, 1), 0.33), False)
sketch31.addConstraint([
    Sketcher.Constraint("Diameter", 0, Q("0.65 mm")),
    Sketcher.Constraint("DistanceX", -1, 1, 0, 3, Q("6.425 mm")),
    Sketcher.Constraint("DistanceY", 0, 3, -1, 1, Q("5.375 mm")),
])
pad31 = body31.newObject("PartDesign::Pad", "Pad030")
pad31.Profile = sketch31
pad31.Length = 2
pad31.Reversed = True
body32 = doc.addObject("PartDesign::Body", "Body031")

sketch32 = body32.newObject("Sketcher::SketchObject", "Sketch031")
sketch32.AttachmentSupport = (doc.getObject("XZ_Plane031"), [""])
sketch32.MapMode = "FlatFace"
sketch32.addGeometry(Part.Circle(Vector(8.32, -5.38, 0), Vector(0, 0, 1), 0.33), False)
sketch32.addConstraint([
    Sketcher.Constraint("Diameter", 0, Q("0.65 mm")),
    Sketcher.Constraint("DistanceX", -1, 1, 0, 3, Q("8.325 mm")),
    Sketcher.Constraint("DistanceY", 0, 3, -1, 1, Q("5.375 mm")),
])
pad32 = body32.newObject("PartDesign::Pad", "Pad031")
pad32.Profile = sketch32
pad32.Length = 2
pad32.Reversed = True
body33 = doc.addObject("PartDesign::Body", "Body032")

sketch33 = body33.newObject("Sketcher::SketchObject", "Sketch032")
sketch33.AttachmentSupport = (doc.getObject("XZ_Plane032"), [""])
sketch33.MapMode = "FlatFace"
sketch33.addGeometry(Part.Circle(Vector(10.22, -5.38, 0), Vector(0, 0, 1), 0.33), False)
sketch33.addConstraint([
    Sketcher.Constraint("Diameter", 0, Q("0.65 mm")),
    Sketcher.Constraint("DistanceX", -1, 1, 0, 3, Q("10.225 mm")),
    Sketcher.Constraint("DistanceY", 0, 3, -1, 1, Q("5.375 mm")),
])
pad33 = body33.newObject("PartDesign::Pad", "Pad032")
pad33.Profile = sketch33
pad33.Length = 2
pad33.Reversed = True
body34 = doc.addObject("PartDesign::Body", "Body033")

sketch34 = body34.newObject("Sketcher::SketchObject", "Sketch033")
sketch34.AttachmentSupport = (doc.getObject("XZ_Plane033"), [""])
sketch34.MapMode = "FlatFace"
sketch34.addGeometry(Part.Circle(Vector(12.12, -5.38, 0), Vector(0, 0, 1), 0.33), False)
sketch34.addConstraint([
    Sketcher.Constraint("Diameter", 0, Q("0.65 mm")),
    Sketcher.Constraint("DistanceX", -1, 1, 0, 3, Q("12.125 mm")),
    Sketcher.Constraint("DistanceY", 0, 3, -1, 1, Q("5.375 mm")),
])
pad34 = body34.newObject("PartDesign::Pad", "Pad033")
pad34.Profile = sketch34
pad34.Length = 2
pad34.Reversed = True
body35 = doc.addObject("PartDesign::Body", "Body034")

sketch35 = body35.newObject("Sketcher::SketchObject", "Sketch034")
sketch35.AttachmentSupport = (doc.getObject("XZ_Plane034"), [""])
sketch35.MapMode = "FlatFace"
sketch35.addGeometry(Part.Circle(Vector(14.03, -5.38, 0), Vector(0, 0, 1), 0.33), False)
sketch35.addConstraint([
    Sketcher.Constraint("Diameter", 0, Q("0.65 mm")),
    Sketcher.Constraint("DistanceX", -1, 1, 0, 3, Q("14.025 mm")),
    Sketcher.Constraint("DistanceY", 0, 3, -1, 1, Q("5.375 mm")),
])
pad35 = body35.newObject("PartDesign::Pad", "Pad034")
pad35.Profile = sketch35
pad35.Length = 2
pad35.Reversed = True
body36 = doc.addObject("PartDesign::Body", "Body035")

sketch36 = body36.newObject("Sketcher::SketchObject", "Sketch035")
sketch36.AttachmentSupport = (doc.getObject("XZ_Plane035"), [""])
sketch36.MapMode = "FlatFace"
sketch36.addGeometry(Part.Circle(Vector(15.93, -5.38, 0), Vector(0, 0, 1), 0.33), False)
sketch36.addConstraint([
    Sketcher.Constraint("Diameter", 0, Q("0.65 mm")),
    Sketcher.Constraint("DistanceX", -1, 1, 0, 3, Q("15.925 mm")),
    Sketcher.Constraint("DistanceY", 0, 3, -1, 1, Q("5.375 mm")),
])
pad36 = body36.newObject("PartDesign::Pad", "Pad035")
pad36.Profile = sketch36
pad36.Length = 2
pad36.Reversed = True
body37 = doc.addObject("PartDesign::Body", "Body036")

sketch37 = body37.newObject("Sketcher::SketchObject", "Sketch036")
sketch37.AttachmentSupport = (doc.getObject("XZ_Plane036"), [""])
sketch37.MapMode = "FlatFace"
sketch37.addGeometry(Part.Circle(Vector(0.72, -0.88, 0), Vector(0, 0, 1), 0.33), False)
sketch37.addConstraint([
    Sketcher.Constraint("Diameter", 0, Q("0.65 mm")),
    Sketcher.Constraint("DistanceX", -1, 1, 0, 3, Q("0.725 mm")),
    Sketcher.Constraint("DistanceY", 0, 3, -1, 1, Q("0.875 mm")),
])
pad37 = body37.newObject("PartDesign::Pad", "Pad036")
pad37.Profile = sketch37
pad37.Length = 2
pad37.Reversed = True
body38 = doc.addObject("PartDesign::Body", "Body037")

sketch38 = body38.newObject("Sketcher::SketchObject", "Sketch037")
sketch38.AttachmentSupport = (doc.getObject("XZ_Plane037"), [""])
sketch38.MapMode = "FlatFace"
sketch38.addGeometry(Part.Circle(Vector(0.72, -2.38, 0), Vector(0, 0, 1), 0.33), False)
sketch38.addConstraint([
    Sketcher.Constraint("Diameter", 0, Q("0.65 mm")),
    Sketcher.Constraint("DistanceX", -1, 1, 0, 3, Q("0.725 mm")),
    Sketcher.Constraint("DistanceY", 0, 3, -1, 1, Q("2.375 mm")),
])
pad38 = body38.newObject("PartDesign::Pad", "Pad037")
pad38.Profile = sketch38
pad38.Length = 2
pad38.Reversed = True
body39 = doc.addObject("PartDesign::Body", "Body038")

sketch39 = body39.newObject("Sketcher::SketchObject", "Sketch038")
sketch39.AttachmentSupport = (doc.getObject("XZ_Plane038"), [""])
sketch39.MapMode = "FlatFace"
sketch39.addGeometry(Part.Circle(Vector(0.72, -3.88, 0), Vector(0, 0, 1), 0.33), False)
sketch39.addConstraint([
    Sketcher.Constraint("Diameter", 0, Q("0.65 mm")),
    Sketcher.Constraint("DistanceX", -1, 1, 0, 3, Q("0.725 mm")),
    Sketcher.Constraint("DistanceY", 0, 3, -1, 1, Q("3.875 mm")),
])
pad39 = body39.newObject("PartDesign::Pad", "Pad038")
pad39.Profile = sketch39
pad39.Length = 2
pad39.Reversed = True
body40 = doc.addObject("PartDesign::Body", "Body039")

sketch40 = body40.newObject("Sketcher::SketchObject", "Sketch039")
sketch40.AttachmentSupport = (doc.getObject("XZ_Plane039"), [""])
sketch40.MapMode = "FlatFace"
sketch40.addGeometry(Part.Circle(Vector(0.72, -5.38, 0), Vector(0, 0, 1), 0.33), False)
sketch40.addConstraint([
    Sketcher.Constraint("Diameter", 0, Q("0.65 mm")),
    Sketcher.Constraint("DistanceX", -1, 1, 0, 3, Q("0.725 mm")),
    Sketcher.Constraint("DistanceY", 0, 3, -1, 1, Q("5.375 mm")),
])
pad40 = body40.newObject("PartDesign::Pad", "Pad039")
pad40.Profile = sketch40
pad40.Length = 2
pad40.Reversed = True
body41 = doc.addObject("PartDesign::Body", "Body040")

sketch41 = body41.newObject("Sketcher::SketchObject", "Sketch040")
sketch41.AttachmentSupport = (doc.getObject("XZ_Plane040"), [""])
sketch41.MapMode = "FlatFace"
sketch41.addGeometry(Part.Circle(Vector(-1.77, 0.62, 0), Vector(0, 0, 1), 0.33), False)
sketch41.addConstraint([
    Sketcher.Constraint("Diameter", 0, Q("0.65 mm")),
    Sketcher.Constraint("DistanceX", 0, 3, -1, 1, Q("1.775 mm")),
    Sketcher.Constraint("DistanceY", -1, 1, 0, 3, Q("0.625 mm")),
])
pad41 = body41.newObject("PartDesign::Pad", "Pad040")
pad41.Profile = sketch41
pad41.Length = 2
pad41.Reversed = True
body42 = doc.addObject("PartDesign::Body", "Body041")

sketch42 = body42.newObject("Sketcher::SketchObject", "Sketch041")
sketch42.AttachmentSupport = (doc.getObject("XZ_Plane041"), [""])
sketch42.MapMode = "FlatFace"
sketch42.addGeometry(Part.Circle(Vector(-4.28, 0.62, 0), Vector(0, 0, 1), 0.33), False)
sketch42.addConstraint([
    Sketcher.Constraint("Diameter", 0, Q("0.65 mm")),
    Sketcher.Constraint("DistanceX", 0, 3, -1, 1, Q("4.275 mm")),
    Sketcher.Constraint("DistanceY", -1, 1, 0, 3, Q("0.625 mm")),
])
pad42 = body42.newObject("PartDesign::Pad", "Pad041")
pad42.Profile = sketch42
pad42.Length = 2
pad42.Reversed = True
body43 = doc.addObject("PartDesign::Body", "Body042")

sketch43 = body43.newObject("Sketcher::SketchObject", "Sketch042")
sketch43.AttachmentSupport = (doc.getObject("XZ_Plane042"), [""])
sketch43.MapMode = "FlatFace"
sketch43.addGeometry(Part.Circle(Vector(-4.28, -5.38, 0), Vector(0, 0, 1), 0.33), False)
sketch43.addConstraint([
    Sketcher.Constraint("Diameter", 0, Q("0.65 mm")),
    Sketcher.Constraint("DistanceX", 0, 3, -1, 1, Q("4.275 mm")),
    Sketcher.Constraint("DistanceY", 0, 3, -1, 1, Q("5.375 mm")),
])
pad43 = body43.newObject("PartDesign::Pad", "Pad042")
pad43.Profile = sketch43
pad43.Length = 2
pad43.Reversed = True
body44 = doc.addObject("PartDesign::Body", "Body043")

sketch44 = body44.newObject("Sketcher::SketchObject", "Sketch043")
sketch44.AttachmentSupport = (doc.getObject("XZ_Plane043"), [""])
sketch44.MapMode = "FlatFace"
sketch44.addGeometry(Part.Circle(Vector(-1.77, -2.38, 0), Vector(0, 0, 1), 0.33), False)
sketch44.addConstraint([
    Sketcher.Constraint("Diameter", 0, Q("0.65 mm")),
    Sketcher.Constraint("DistanceX", 0, 3, -1, 1, Q("1.775 mm")),
    Sketcher.Constraint("DistanceY", 0, 3, -1, 1, Q("2.375 mm")),
])
pad44 = body44.newObject("PartDesign::Pad", "Pad043")
pad44.Profile = sketch44
pad44.Length = 2
pad44.Reversed = True
body45 = doc.addObject("PartDesign::Body", "Body044")

sketch45 = body45.newObject("Sketcher::SketchObject", "Sketch044")
sketch45.AttachmentSupport = (doc.getObject("XZ_Plane044"), [""])
sketch45.MapMode = "FlatFace"
sketch45.addGeometry(Part.Circle(Vector(-1.77, -5.38, 0), Vector(0, 0, 1), 0.33), False)
sketch45.addConstraint([
    Sketcher.Constraint("Diameter", 0, Q("0.65 mm")),
    Sketcher.Constraint("DistanceX", 0, 3, -1, 1, Q("1.775 mm")),
    Sketcher.Constraint("DistanceY", 0, 3, -1, 1, Q("5.375 mm")),
])
pad45 = body45.newObject("PartDesign::Pad", "Pad044")
pad45.Profile = sketch45
pad45.Length = 2
pad45.Reversed = True

doc.recompute()
